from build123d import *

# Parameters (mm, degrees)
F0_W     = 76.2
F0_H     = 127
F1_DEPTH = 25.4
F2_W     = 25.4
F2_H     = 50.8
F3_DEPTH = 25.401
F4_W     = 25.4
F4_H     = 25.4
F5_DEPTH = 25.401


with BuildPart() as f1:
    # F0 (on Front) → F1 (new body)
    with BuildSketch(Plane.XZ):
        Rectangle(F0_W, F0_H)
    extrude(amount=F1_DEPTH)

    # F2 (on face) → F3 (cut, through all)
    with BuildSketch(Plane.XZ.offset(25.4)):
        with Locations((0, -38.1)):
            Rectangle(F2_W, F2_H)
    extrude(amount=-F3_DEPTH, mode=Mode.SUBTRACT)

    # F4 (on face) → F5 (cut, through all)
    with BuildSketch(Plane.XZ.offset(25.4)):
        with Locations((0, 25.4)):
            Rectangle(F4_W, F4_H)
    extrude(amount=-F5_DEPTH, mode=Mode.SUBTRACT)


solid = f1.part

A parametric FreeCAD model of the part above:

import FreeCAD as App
import Part
import Sketcher
from FreeCAD import Vector
Q = App.Units.Quantity

doc = App.newDocument("Part")
body = doc.addObject("PartDesign::Body", "Body")

# Sketch on XZ plane
sketch1 = body.newObject("Sketcher::SketchObject", "Sketch")
sketch1.AttachmentSupport = (doc.getObject("XZ_Plane"), [""])
sketch1.MapMode = "FlatFace"
sketch1.addGeometry([
    Part.LineSegment(Vector(-38, 64, 0), Vector(-38, -64, 0)),
    Part.LineSegment(Vector(-38, -64, 0), Vector(38, -64, 0)),
    Part.LineSegment(Vector(38, -64, 0), Vector(38, 64, 0)),
    Part.LineSegment(Vector(38, 64, 0), Vector(-38, 64, 0)),
], False)
sketch1.addConstraint([
    Sketcher.Constraint("Coincident", 0, 2, 1, 1),
    Sketcher.Constraint("Coincident", 1, 2, 2, 1),
    Sketcher.Constraint("Coincident", 2, 2, 3, 1),
    Sketcher.Constraint("Coincident", 3, 2, 0, 1),
    Sketcher.Constraint("Vertical", 0),
    Sketcher.Constraint("Horizontal", 1),
    Sketcher.Constraint("Vertical", 2),
    Sketcher.Constraint("Horizontal", 3),
    Sketcher.Constraint("Symmetric", 0, 2, 2, 2, -1, 1),
    Sketcher.Constraint("DistanceX", 1, 1, 1, 2, Q("3 in")),
    Sketcher.Constraint("DistanceY", 0, 2, 0, 1, Q("5 in")),
])
pad1 = body.newObject("PartDesign::Pad", "Pad")
pad1.Profile = sketch1
pad1.Length = Q("1 in")

# Sketch on XZ plane
sketch2 = body.newObject("Sketcher::SketchObject", "Sketch001")
sketch2.AttachmentSupport = (doc.getObject("XZ_Plane"), [""])
sketch2.MapMode = "FlatFace"
sketch2.AttachmentOffset = App.Placement(Vector(0, 0, 1 * 25.4), App.Rotation())
sketch2.addGeometry([
    Part.LineSegment(Vector(-13, -13, 0), Vector(-13, -64, 0)),
    Part.LineSegment(Vector(-13, -64, 0), Vector(13, -64, 0)),
    Part.LineSegment(Vector(13, -64, 0), Vector(13, -13, 0)),
    Part.LineSegment(Vector(13, -13, 0), Vector(-13, -13, 0)),
], False)
sketch2.addConstraint([
    Sketcher.Constraint("Coincident", 0, 2, 1, 1),
    Sketcher.Constraint("Coincident", 1, 2, 2, 1),
    Sketcher.Constraint("Coincident", 2, 2, 3, 1),
    Sketcher.Constraint("Coincident", 3, 2, 0, 1),
    Sketcher.Constraint("Vertical", 0),
    Sketcher.Constraint("Horizontal", 1),
    Sketcher.Constraint("Vertical", 2),
    Sketcher.Constraint("Horizontal", 3),
    Sketcher.Constraint("DistanceX", 1, 1, 1, 2, Q("1 in")),
    Sketcher.Constraint("DistanceY", 0, 2, 0, 1, Q("2 in")),
    Sketcher.Constraint("DistanceX", 0, 2, -1, 1, Q("0.5 in")),
    Sketcher.Constraint("DistanceY", 0, 2, -1, 1, Q("2.5 in")),
])
pocket1 = body.newObject("PartDesign::Pocket", "Pocket")
pocket1.Profile = sketch2
pocket1.Type = "ThroughAll"

# Sketch on XZ plane
sketch3 = body.newObject("Sketcher::SketchObject", "Sketch002")
sketch3.AttachmentSupport = (doc.getObject("XZ_Plane"), [""])
sketch3.MapMode = "FlatFace"
sketch3.AttachmentOffset = App.Placement(Vector(0, 0, 1 * 25.4), App.Rotation())
sketch3.addGeometry([
    Part.LineSegment(Vector(-13, 38, 0), Vector(-13, 13, 0)),
    Part.LineSegment(Vector(-13, 13, 0), Vector(13, 13, 0)),
    Part.LineSegment(Vector(13, 13, 0), Vector(13, 38, 0)),
    Part.LineSegment(Vector(13, 38, 0), Vector(-13, 38, 0)),
], False)
sketch3.addConstraint([
    Sketcher.Constraint("Coincident", 0, 2, 1, 1),
    Sketcher.Constraint("Coincident", 1, 2, 2, 1),
    Sketcher.Constraint("Coincident", 2, 2, 3, 1),
    Sketcher.Constraint("Coincident", 3, 2, 0, 1),
    Sketcher.Constraint("Vertical", 0),
    Sketcher.Constraint("Horizontal", 1),
    Sketcher.Constraint("Vertical", 2),
    Sketcher.Constraint("Horizontal", 3),
    Sketcher.Constraint("Equal", 3, 0),
    Sketcher.Constraint("DistanceX", 1, 1, 1, 2, Q("1 in")),
    Sketcher.Constraint("DistanceX", 0, 2, -1, 1, Q("0.5 in")),
    Sketcher.Constraint("DistanceY", -1, 1, 0, 2, Q("0.5 in")),
])
pocket2 = body.newObject("PartDesign::Pocket", "Pocket001")
pocket2.Profile = sketch3
pocket2.Type = "ThroughAll"

doc.recompute()
